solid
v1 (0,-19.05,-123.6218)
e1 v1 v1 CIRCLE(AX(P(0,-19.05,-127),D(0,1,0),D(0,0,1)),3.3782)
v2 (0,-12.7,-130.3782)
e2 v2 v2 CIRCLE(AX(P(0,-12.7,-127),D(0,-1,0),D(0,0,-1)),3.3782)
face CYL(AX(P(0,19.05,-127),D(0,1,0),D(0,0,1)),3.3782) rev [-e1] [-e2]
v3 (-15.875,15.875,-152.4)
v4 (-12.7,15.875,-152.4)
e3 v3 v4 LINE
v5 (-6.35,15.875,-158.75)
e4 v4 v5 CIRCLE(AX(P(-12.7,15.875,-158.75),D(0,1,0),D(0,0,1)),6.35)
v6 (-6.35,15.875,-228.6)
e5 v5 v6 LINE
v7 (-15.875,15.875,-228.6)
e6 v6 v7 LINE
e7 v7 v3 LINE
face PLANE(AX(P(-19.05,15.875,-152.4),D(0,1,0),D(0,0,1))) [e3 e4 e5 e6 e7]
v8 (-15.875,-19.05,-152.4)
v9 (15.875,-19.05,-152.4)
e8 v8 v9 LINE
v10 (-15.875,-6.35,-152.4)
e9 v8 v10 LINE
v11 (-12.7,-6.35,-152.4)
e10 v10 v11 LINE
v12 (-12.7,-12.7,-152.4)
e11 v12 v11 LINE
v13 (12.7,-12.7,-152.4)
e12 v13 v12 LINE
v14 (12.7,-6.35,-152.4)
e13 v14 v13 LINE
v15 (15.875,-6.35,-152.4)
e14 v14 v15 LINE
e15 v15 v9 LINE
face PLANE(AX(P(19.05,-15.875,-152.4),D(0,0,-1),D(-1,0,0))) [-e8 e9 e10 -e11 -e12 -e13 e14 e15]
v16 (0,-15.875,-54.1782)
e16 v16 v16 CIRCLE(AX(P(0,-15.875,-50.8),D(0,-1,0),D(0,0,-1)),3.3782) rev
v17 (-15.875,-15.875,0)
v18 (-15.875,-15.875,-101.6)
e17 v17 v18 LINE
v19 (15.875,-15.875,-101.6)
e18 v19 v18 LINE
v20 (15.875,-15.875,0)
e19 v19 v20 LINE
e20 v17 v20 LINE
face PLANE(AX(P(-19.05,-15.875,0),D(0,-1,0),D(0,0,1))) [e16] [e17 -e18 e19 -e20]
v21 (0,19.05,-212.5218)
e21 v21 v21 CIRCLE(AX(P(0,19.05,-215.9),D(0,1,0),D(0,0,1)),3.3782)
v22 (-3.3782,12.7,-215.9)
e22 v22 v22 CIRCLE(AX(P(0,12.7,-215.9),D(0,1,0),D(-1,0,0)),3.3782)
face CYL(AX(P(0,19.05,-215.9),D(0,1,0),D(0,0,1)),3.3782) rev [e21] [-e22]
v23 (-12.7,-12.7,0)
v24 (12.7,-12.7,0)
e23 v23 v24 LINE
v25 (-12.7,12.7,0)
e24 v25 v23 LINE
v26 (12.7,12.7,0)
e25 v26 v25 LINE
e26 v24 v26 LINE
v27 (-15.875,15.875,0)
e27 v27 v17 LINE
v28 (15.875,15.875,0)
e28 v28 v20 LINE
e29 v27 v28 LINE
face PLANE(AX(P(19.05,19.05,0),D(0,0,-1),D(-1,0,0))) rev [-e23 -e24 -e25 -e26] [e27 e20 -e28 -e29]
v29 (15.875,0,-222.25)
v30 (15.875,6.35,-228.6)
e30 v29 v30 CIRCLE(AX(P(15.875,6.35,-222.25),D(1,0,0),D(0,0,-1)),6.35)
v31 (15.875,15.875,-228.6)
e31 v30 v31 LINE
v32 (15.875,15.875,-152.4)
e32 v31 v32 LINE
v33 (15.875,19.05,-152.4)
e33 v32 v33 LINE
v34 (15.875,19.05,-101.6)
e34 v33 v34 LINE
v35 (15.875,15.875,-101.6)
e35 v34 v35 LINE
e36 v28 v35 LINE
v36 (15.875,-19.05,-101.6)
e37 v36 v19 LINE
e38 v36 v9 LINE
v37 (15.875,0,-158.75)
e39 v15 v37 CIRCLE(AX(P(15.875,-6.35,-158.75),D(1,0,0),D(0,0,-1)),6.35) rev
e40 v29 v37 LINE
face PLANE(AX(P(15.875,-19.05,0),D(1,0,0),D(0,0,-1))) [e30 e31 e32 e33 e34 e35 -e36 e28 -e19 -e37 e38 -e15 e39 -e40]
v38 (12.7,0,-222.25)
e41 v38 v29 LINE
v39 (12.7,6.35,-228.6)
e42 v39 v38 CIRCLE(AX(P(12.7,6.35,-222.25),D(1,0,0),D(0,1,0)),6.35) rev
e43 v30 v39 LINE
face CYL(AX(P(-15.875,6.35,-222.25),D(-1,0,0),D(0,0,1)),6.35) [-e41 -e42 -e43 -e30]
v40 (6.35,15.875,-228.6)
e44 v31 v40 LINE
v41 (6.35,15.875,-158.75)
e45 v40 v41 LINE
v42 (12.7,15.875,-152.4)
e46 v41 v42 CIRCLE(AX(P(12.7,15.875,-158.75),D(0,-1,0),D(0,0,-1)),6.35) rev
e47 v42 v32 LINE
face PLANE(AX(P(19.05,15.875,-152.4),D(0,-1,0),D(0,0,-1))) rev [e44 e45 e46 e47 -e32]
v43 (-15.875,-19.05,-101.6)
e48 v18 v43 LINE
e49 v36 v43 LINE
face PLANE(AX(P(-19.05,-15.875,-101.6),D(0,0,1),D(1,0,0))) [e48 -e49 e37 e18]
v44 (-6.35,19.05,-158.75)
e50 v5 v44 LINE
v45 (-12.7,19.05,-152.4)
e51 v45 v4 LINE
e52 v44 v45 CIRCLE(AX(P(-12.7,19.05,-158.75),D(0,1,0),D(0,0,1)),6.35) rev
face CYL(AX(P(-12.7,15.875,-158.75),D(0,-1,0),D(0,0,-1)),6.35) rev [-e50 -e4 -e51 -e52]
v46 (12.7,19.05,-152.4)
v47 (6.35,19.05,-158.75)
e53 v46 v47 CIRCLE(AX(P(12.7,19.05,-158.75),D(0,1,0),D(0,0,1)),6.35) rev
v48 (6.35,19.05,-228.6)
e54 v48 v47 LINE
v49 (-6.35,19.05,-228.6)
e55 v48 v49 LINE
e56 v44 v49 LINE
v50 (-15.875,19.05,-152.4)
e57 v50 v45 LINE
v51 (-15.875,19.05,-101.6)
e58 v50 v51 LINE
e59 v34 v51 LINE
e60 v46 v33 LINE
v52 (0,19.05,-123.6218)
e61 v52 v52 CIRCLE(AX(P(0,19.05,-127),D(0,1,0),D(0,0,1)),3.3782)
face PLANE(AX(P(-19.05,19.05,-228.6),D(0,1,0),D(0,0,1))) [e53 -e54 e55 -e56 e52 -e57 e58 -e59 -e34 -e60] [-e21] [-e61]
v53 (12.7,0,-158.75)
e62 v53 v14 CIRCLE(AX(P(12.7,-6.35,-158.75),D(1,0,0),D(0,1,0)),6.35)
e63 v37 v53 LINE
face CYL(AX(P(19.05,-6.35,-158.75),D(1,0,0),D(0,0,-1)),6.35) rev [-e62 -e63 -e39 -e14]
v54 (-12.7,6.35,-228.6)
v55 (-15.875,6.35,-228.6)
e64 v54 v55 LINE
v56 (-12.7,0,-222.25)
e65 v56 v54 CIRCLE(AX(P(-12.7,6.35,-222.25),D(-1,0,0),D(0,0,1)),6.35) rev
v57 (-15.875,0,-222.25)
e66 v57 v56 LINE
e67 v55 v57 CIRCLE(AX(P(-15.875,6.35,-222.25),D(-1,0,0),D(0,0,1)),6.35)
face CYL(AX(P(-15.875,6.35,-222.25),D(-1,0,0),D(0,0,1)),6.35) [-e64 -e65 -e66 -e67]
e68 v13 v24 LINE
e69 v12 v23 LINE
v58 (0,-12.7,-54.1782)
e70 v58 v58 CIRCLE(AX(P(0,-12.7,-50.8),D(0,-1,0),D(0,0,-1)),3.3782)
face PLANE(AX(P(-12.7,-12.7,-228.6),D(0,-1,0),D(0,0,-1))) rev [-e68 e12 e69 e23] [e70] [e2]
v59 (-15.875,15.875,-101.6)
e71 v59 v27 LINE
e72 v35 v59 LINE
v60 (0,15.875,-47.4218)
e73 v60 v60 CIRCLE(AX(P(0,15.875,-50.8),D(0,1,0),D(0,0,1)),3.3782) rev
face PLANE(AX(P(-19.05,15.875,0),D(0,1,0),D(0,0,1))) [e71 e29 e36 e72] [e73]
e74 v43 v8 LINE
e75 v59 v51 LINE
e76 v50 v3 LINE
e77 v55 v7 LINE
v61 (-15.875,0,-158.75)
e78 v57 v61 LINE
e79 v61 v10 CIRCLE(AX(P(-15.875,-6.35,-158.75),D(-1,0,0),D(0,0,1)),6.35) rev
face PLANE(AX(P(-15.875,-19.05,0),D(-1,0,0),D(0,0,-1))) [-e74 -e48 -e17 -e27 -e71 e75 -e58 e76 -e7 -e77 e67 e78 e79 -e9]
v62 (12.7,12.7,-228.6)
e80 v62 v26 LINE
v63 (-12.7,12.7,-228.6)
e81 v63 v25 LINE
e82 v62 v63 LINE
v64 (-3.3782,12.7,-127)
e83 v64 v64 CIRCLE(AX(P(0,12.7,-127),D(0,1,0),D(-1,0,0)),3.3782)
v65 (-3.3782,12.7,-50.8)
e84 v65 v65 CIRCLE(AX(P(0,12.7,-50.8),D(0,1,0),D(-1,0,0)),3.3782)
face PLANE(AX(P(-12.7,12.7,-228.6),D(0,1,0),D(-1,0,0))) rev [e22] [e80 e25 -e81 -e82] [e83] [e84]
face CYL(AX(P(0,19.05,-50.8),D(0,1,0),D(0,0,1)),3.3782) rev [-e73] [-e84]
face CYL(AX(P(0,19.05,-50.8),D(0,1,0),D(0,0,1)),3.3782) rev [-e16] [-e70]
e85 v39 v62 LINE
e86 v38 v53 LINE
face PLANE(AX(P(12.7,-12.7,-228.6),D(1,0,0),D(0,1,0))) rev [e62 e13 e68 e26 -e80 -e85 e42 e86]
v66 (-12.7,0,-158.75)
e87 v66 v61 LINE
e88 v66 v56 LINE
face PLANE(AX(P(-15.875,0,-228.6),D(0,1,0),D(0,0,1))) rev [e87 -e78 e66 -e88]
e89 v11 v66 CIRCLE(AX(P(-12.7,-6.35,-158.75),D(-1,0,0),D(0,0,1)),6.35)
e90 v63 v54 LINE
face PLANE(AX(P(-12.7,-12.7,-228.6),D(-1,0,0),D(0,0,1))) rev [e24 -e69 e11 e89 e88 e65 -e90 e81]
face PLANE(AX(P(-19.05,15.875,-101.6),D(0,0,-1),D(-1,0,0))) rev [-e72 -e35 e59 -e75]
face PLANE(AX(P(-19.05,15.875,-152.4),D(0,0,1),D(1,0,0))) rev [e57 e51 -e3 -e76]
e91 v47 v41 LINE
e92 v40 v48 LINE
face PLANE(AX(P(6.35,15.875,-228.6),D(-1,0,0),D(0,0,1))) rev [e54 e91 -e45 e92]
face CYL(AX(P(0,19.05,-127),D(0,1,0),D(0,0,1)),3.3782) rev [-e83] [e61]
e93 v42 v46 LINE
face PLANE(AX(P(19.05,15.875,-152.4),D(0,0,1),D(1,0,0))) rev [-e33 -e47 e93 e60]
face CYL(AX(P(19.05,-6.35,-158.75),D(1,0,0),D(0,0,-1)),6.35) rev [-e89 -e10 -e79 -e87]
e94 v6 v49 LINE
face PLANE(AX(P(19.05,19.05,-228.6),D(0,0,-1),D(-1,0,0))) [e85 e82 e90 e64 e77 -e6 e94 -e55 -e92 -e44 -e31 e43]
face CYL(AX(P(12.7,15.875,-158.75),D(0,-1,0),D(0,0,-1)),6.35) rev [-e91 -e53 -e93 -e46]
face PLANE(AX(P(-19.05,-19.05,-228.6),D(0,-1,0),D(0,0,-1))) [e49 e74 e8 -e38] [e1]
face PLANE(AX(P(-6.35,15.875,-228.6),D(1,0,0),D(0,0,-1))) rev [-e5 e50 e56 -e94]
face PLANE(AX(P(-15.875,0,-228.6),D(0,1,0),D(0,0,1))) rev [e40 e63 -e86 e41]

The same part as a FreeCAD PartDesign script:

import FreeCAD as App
import Part
import Sketcher

V = App.Vector
Q = App.Units.Quantity


def edges_at(feature, points):
    """Names of the edges that pass closest to the given points."""
    edges = feature.Shape.Edges
    near = lambda p: min(range(len(edges)), key=lambda i: edges[i].distToShape(Part.Vertex(*p))[0])
    return sorted({f"Edge{near(p) + 1}" for p in points})

doc = App.newDocument("Part")
body = doc.addObject("PartDesign::Body", "Body")

# Sketch on XY plane
sketch1 = body.newObject("Sketcher::SketchObject", "Sketch")
sketch1.AttachmentSupport = (doc.getObject("XY_Plane"), [""])
sketch1.MapMode = "FlatFace"
sketch1.addGeometry(Part.LineSegment(V(-19, 19, 0), V(-19, -19, 0)), False)
sketch1.addGeometry(Part.LineSegment(V(-19, -19, 0), V(19, -19, 0)), False)
sketch1.addGeometry(Part.LineSegment(V(19, -19, 0), V(19, 19, 0)), False)
sketch1.addGeometry(Part.LineSegment(V(19, 19, 0), V(-19, 19, 0)), False)
sketch1.addGeometry(Part.LineSegment(V(13, -13, 0), V(-13, -13, 0)), False)
sketch1.addGeometry(Part.LineSegment(V(-13, -13, 0), V(-13, 13, 0)), False)
sketch1.addGeometry(Part.LineSegment(V(-13, 13, 0), V(13, 13, 0)), False)
sketch1.addGeometry(Part.LineSegment(V(13, 13, 0), V(13, -13, 0)), False)
sketch1.addConstraint(Sketcher.Constraint("Coincident", 0, 2, 1, 1))
sketch1.addConstraint(Sketcher.Constraint("Coincident", 1, 2, 2, 1))
sketch1.addConstraint(Sketcher.Constraint("Coincident", 2, 2, 3, 1))
sketch1.addConstraint(Sketcher.Constraint("Coincident", 3, 2, 0, 1))
sketch1.addConstraint(Sketcher.Constraint("Coincident", 4, 2, 5, 1))
sketch1.addConstraint(Sketcher.Constraint("Coincident", 5, 2, 6, 1))
sketch1.addConstraint(Sketcher.Constraint("Coincident", 6, 2, 7, 1))
sketch1.addConstraint(Sketcher.Constraint("Coincident", 7, 2, 4, 1))
sketch1.addConstraint(Sketcher.Constraint("Vertical", 0))
sketch1.addConstraint(Sketcher.Constraint("Horizontal", 1))
sketch1.addConstraint(Sketcher.Constraint("Vertical", 2))
sketch1.addConstraint(Sketcher.Constraint("Horizontal", 3))
sketch1.addConstraint(Sketcher.Constraint("Horizontal", 4))
sketch1.addConstraint(Sketcher.Constraint("Vertical", 5))
sketch1.addConstraint(Sketcher.Constraint("Horizontal", 6))
sketch1.addConstraint(Sketcher.Constraint("Vertical", 7))
sketch1.addConstraint(Sketcher.Constraint("Symmetric", 0, 2, 2, 2, -1, 1))
sketch1.addConstraint(Sketcher.Constraint("Symmetric", 4, 2, 6, 2, -1, 1))
sketch1.addConstraint(Sketcher.Constraint("Equal", 3, 0))
sketch1.addConstraint(Sketcher.Constraint("Equal", 6, 5))
sketch1.addConstraint(Sketcher.Constraint("DistanceX", 4, 2, 4, 1, Q("1 in")))
sketch1.addConstraint(Sketcher.Constraint("DistanceX", 1, 1, 1, 2, Q("1.5 in")))
pad1 = body.newObject("PartDesign::Pad", "Pad")
pad1.Profile = sketch1
pad1.Length = Q("9 in")
pad1.Reversed = True

# Sketch on XZ plane
sketch2 = body.newObject("Sketcher::SketchObject", "Sketch001")
sketch2.AttachmentSupport = (doc.getObject("XZ_Plane"), [""])
sketch2.MapMode = "FlatFace"
sketch2.AttachmentOffset = App.Placement(V(0, 0, -0.75 * 25.4), App.Rotation())
sketch2.addGeometry(Part.Circle(V(0, -215.9, 0), V(0, 0, 1), 3.4), False)
sketch2.addGeometry(Part.Circle(V(0, -50.8, 0), V(0, 0, 1), 3.4), False)
sketch2.addGeometry(Part.Circle(V(0, -127, 0), V(0, 0, 1), 3.4), False)
sketch2.addConstraint(Sketcher.Constraint("Equal", 0, 1))
sketch2.addConstraint(Sketcher.Constraint("Equal", 1, 2))
sketch2.addConstraint(Sketcher.Constraint("PointOnObject", 0, 3, -2))
sketch2.addConstraint(Sketcher.Constraint("PointOnObject", 1, 3, -2))
sketch2.addConstraint(Sketcher.Constraint("PointOnObject", 2, 3, -2))
sketch2.addConstraint(Sketcher.Constraint("Diameter", 0, Q("0.266 in")))
sketch2.addConstraint(Sketcher.Constraint("DistanceY", 1, 3, -1, 1, Q("2 in")))
sketch2.addConstraint(Sketcher.Constraint("DistanceY", 2, 3, -1, 1, Q("5 in")))
sketch2.addConstraint(Sketcher.Constraint("DistanceY", 0, 3, -1, 1, Q("8.5 in")))
doc.recompute()
hole = body.newObject("PartDesign::Hole", "Hole")
hole.Profile = sketch2
hole.ThreadType = "None"
hole.Diameter = Q("0.266 in")
hole.DepthType = "ThroughAll"
hole.Reversed = True

# Sketch on XZ plane
sketch3 = body.newObject("Sketcher::SketchObject", "Sketch002")
sketch3.AttachmentSupport = (doc.getObject("XZ_Plane"), [""])
sketch3.MapMode = "FlatFace"
sketch3.AttachmentOffset = App.Placement(V(0, 0, -0.75 * 25.4), App.Rotation())
sketch3.addGeometry(Part.LineSegment(V(-19, -229, 0), V(-19, -152, 0)), False)
sketch3.addGeometry(Part.LineSegment(V(-19, -152, 0), V(-6, -152, 0)), False)
sketch3.addGeometry(Part.LineSegment(V(-6, -152, 0), V(-6, -229, 0)), False)
sketch3.addGeometry(Part.LineSegment(V(-6, -229, 0), V(-19, -229, 0)), False)
sketch3.addGeometry(Part.LineSegment(V(-19, -102, 0), V(-19, 0, 0)), False)
sketch3.addGeometry(Part.LineSegment(V(-19, 0, 0), V(19, 0, 0)), False)
sketch3.addGeometry(Part.LineSegment(V(19, 0, 0), V(19, -102, 0)), False)
sketch3.addGeometry(Part.LineSegment(V(19, -102, 0), V(-19, -102, 0)), False)
sketch3.addGeometry(Part.LineSegment(V(6, -229, 0), V(6, -152, 0)), False)
sketch3.addGeometry(Part.LineSegment(V(6, -152, 0), V(19, -152, 0)), False)
sketch3.addGeometry(Part.LineSegment(V(19, -152, 0), V(19, -229, 0)), False)
sketch3.addGeometry(Part.LineSegment(V(19, -229, 0), V(6, -229, 0)), False)
sketch3.addConstraint(Sketcher.Constraint("Coincident", 0, 2, 1, 1))
sketch3.addConstraint(Sketcher.Constraint("Coincident", 1, 2, 2, 1))
sketch3.addConstraint(Sketcher.Constraint("Coincident", 2, 2, 3, 1))
sketch3.addConstraint(Sketcher.Constraint("Coincident", 3, 2, 0, 1))
sketch3.addConstraint(Sketcher.Constraint("Coincident", 4, 2, 5, 1))
sketch3.addConstraint(Sketcher.Constraint("Coincident", 5, 2, 6, 1))
sketch3.addConstraint(Sketcher.Constraint("Coincident", 6, 2, 7, 1))
sketch3.addConstraint(Sketcher.Constraint("Coincident", 7, 2, 4, 1))
sketch3.addConstraint(Sketcher.Constraint("Coincident", 8, 2, 9, 1))
sketch3.addConstraint(Sketcher.Constraint("Coincident", 9, 2, 10, 1))
sketch3.addConstraint(Sketcher.Constraint("Coincident", 10, 2, 11, 1))
sketch3.addConstraint(Sketcher.Constraint("Coincident", 11, 2, 8, 1))
sketch3.addConstraint(Sketcher.Constraint("Vertical", 0))
sketch3.addConstraint(Sketcher.Constraint("Horizontal", 1))
sketch3.addConstraint(Sketcher.Constraint("Vertical", 2))
sketch3.addConstraint(Sketcher.Constraint("Horizontal", 3))
sketch3.addConstraint(Sketcher.Constraint("Vertical", 4))
sketch3.addConstraint(Sketcher.Constraint("Horizontal", 5))
sketch3.addConstraint(Sketcher.Constraint("Vertical", 6))
sketch3.addConstraint(Sketcher.Constraint("Horizontal", 7))
sketch3.addConstraint(Sketcher.Constraint("Vertical", 8))
sketch3.addConstraint(Sketcher.Constraint("Horizontal", 9))
sketch3.addConstraint(Sketcher.Constraint("Vertical", 10))
sketch3.addConstraint(Sketcher.Constraint("Horizontal", 11))
sketch3.addConstraint(Sketcher.Constraint("Symmetric", 4, 2, 5, 2, -1, 1))
sketch3.addConstraint(Sketcher.Constraint("Symmetric", 1, 2, 8, 2, -2))
sketch3.addConstraint(Sketcher.Constraint("Symmetric", 3, 2, 10, 2, -2))
sketch3.addConstraint(Sketcher.Constraint("Vertical", 3, 2, 4, 2))
sketch3.addConstraint(Sketcher.Constraint("DistanceY", 0, 1, 0, 2, Q("3 in")))
sketch3.addConstraint(Sketcher.Constraint("DistanceY", 4, 1, 4, 2, Q("4 in")))
sketch3.addConstraint(Sketcher.Constraint("DistanceX", 1, 1, 1, 2, Q("0.5 in")))
sketch3.addConstraint(Sketcher.Constraint("DistanceX", 5, 1, 5, 2, Q("1.5 in")))
sketch3.addConstraint(Sketcher.Constraint("DistanceY", 0, 2, -1, 1, Q("6 in")))
pocket1 = body.newObject("PartDesign::Pocket", "Pocket")
pocket1.Profile = sketch3
pocket1.Length = Q("0.125 in")
pocket1.Reversed = True
doc.recompute()

mirrored = body.newObject("PartDesign::Mirrored", "Mirrored")
mirrored.Originals = [pocket1]
mirrored.MirrorPlane = (doc.getObject("XZ_Plane"), [""])
body.Tip = mirrored

# Sketch on YZ plane
sketch4 = body.newObject("Sketcher::SketchObject", "Sketch003")
sketch4.AttachmentSupport = (doc.getObject("YZ_Plane"), [""])
sketch4.MapMode = "FlatFace"
sketch4.AttachmentOffset = App.Placement(V(0, 0, 0.75 * 25.4), App.Rotation())
sketch4.addGeometry(Part.LineSegment(V(19, 0, 0), V(-19, 0, 0)), False)
sketch4.addGeometry(Part.LineSegment(V(-19, 0, 0), V(-19, -229, 0)), False)
sketch4.addGeometry(Part.LineSegment(V(-19, -229, 0), V(19, -229, 0)), False)
sketch4.addGeometry(Part.LineSegment(V(19, -229, 0), V(19, 0, 0)), False)
sketch4.addConstraint(Sketcher.Constraint("Coincident", 0, 2, 1, 1))
sketch4.addConstraint(Sketcher.Constraint("Coincident", 1, 2, 2, 1))
sketch4.addConstraint(Sketcher.Constraint("Coincident", 2, 2, 3, 1))
sketch4.addConstraint(Sketcher.Constraint("Coincident", 3, 2, 0, 1))
sketch4.addConstraint(Sketcher.Constraint("Horizontal", 0))
sketch4.addConstraint(Sketcher.Constraint("Vertical", 1))
sketch4.addConstraint(Sketcher.Constraint("Horizontal", 2))
sketch4.addConstraint(Sketcher.Constraint("Vertical", 3))
sketch4.addConstraint(Sketcher.Constraint("Symmetric", 0, 2, 3, 2, -1, 1))
sketch4.addConstraint(Sketcher.Constraint("DistanceY", 1, 2, 1, 1, Q("9 in")))
sketch4.addConstraint(Sketcher.Constraint("DistanceX", 0, 2, 0, 1, Q("1.5 in")))
pocket2 = body.newObject("PartDesign::Pocket", "Pocket001")
pocket2.Profile = sketch4
pocket2.Length = Q("0.125 in")
doc.recompute()

mirrored2 = body.newObject("PartDesign::Mirrored", "Mirrored001")
mirrored2.Originals = [pocket2]
mirrored2.MirrorPlane = (doc.getObject("YZ_Plane"), [""])
body.Tip = mirrored2
doc.recompute()

fillet = body.newObject("PartDesign::Fillet", "Fillet")
fillet.Base = (mirrored2, edges_at(mirrored2, [(-6.35, 17.462, -152.4), (6.35, 17.462, -152.4)]))
fillet.Radius = Q("0.25 in")

# Sketch on YZ plane
sketch5 = body.newObject("Sketcher::SketchObject", "Sketch004")
sketch5.AttachmentSupport = (doc.getObject("YZ_Plane"), [""])
sketch5.MapMode = "FlatFace"
sketch5.AttachmentOffset = App.Placement(V(0, 0, 0.625 * 25.4), App.Rotation())
sketch5.addGeometry(Part.LineSegment(V(0, -152, 0), V(-19, -152, 0)), False)
sketch5.addGeometry(Part.LineSegment(V(-19, -152, 0), V(-19, -229, 0)), False)
sketch5.addGeometry(Part.LineSegment(V(-19, -229, 0), V(0, -229, 0)), False)
sketch5.addGeometry(Part.LineSegment(V(0, -229, 0), V(0, -152, 0)), False)
sketch5.addConstraint(Sketcher.Constraint("Coincident", 0, 2, 1, 1))
sketch5.addConstraint(Sketcher.Constraint("Coincident", 1, 2, 2, 1))
sketch5.addConstraint(Sketcher.Constraint("Coincident", 2, 2, 3, 1))
sketch5.addConstraint(Sketcher.Constraint("Coincident", 3, 2, 0, 1))
sketch5.addConstraint(Sketcher.Constraint("Horizontal", 0))
sketch5.addConstraint(Sketcher.Constraint("Vertical", 1))
sketch5.addConstraint(Sketcher.Constraint("Horizontal", 2))
sketch5.addConstraint(Sketcher.Constraint("Vertical", 3))
sketch5.addConstraint(Sketcher.Constraint("PointOnObject", 2, 2, -2))
sketch5.addConstraint(Sketcher.Constraint("DistanceY", 1, 2, 1, 1, Q("3 in")))
sketch5.addConstraint(Sketcher.Constraint("DistanceY", 0, 2, -1, 1, Q("6 in")))
sketch5.addConstraint(Sketcher.Constraint("DistanceX", 0, 2, 0, 1, Q("0.75 in")))
pocket3 = body.newObject("PartDesign::Pocket", "Pocket002")
pocket3.Profile = sketch5
pocket3.Type = "ThroughAll"
doc.recompute()

fillet2 = body.newObject("PartDesign::Fillet", "Fillet001")
fillet2.Base = (pocket3, edges_at(pocket3, [(-14.287, 0, -152.4), (14.287, 0, -152.4)]))
fillet2.Radius = Q("0.25 in")
doc.recompute()

fillet3 = body.newObject("PartDesign::Fillet", "Fillet002")
fillet3.Base = (fillet2, edges_at(fillet2, [(-14.287, 0, -228.6), (14.287, 0, -228.6)]))
fillet3.Radius = Q("0.25 in")

doc.recompute()
